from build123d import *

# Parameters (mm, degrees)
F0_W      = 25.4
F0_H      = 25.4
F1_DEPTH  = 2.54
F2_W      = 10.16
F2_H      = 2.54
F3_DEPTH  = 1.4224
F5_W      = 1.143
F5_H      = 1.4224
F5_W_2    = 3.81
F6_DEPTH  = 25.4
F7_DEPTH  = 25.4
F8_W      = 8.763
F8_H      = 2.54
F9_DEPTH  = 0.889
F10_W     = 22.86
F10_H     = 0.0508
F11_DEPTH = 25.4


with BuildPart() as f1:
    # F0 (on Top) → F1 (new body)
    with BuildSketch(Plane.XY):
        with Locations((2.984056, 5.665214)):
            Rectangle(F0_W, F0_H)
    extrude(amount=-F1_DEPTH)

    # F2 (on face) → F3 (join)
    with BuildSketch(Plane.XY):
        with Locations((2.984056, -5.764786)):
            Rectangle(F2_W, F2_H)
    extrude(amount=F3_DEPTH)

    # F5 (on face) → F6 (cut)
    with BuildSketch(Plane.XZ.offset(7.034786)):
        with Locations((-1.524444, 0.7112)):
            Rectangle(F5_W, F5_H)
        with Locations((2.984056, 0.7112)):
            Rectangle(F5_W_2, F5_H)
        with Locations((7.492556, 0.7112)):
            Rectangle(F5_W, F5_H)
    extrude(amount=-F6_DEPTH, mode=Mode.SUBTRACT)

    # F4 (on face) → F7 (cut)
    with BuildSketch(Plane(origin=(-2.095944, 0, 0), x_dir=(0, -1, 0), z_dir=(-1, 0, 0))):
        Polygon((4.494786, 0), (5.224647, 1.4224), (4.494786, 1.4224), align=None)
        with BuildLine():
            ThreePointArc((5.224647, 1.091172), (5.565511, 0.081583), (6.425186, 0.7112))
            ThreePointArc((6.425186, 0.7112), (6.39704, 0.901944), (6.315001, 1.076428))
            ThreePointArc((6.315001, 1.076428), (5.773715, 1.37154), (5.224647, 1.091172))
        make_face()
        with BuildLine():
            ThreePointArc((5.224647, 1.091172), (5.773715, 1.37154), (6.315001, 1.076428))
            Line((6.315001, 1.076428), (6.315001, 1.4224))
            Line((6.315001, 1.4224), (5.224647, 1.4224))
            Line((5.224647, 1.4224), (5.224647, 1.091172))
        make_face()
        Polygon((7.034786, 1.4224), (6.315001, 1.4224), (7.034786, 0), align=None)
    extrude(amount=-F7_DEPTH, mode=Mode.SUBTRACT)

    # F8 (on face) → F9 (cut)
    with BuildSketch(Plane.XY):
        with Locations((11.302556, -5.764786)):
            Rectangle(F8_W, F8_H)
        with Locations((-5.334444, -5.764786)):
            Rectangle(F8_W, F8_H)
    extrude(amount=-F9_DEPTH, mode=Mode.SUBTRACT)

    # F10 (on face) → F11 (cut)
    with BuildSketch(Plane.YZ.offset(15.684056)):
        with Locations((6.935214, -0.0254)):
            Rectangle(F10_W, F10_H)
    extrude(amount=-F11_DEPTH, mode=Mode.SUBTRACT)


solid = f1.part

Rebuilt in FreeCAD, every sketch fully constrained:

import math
import FreeCAD as App
import Part
import Sketcher

V = App.Vector
Q = App.Units.Quantity

doc = App.newDocument("Part")
body = doc.addObject("PartDesign::Body", "Body")

# Sketch on XY plane
sketch1 = body.newObject("Sketcher::SketchObject", "Sketch")
sketch1.AttachmentSupport = (doc.getObject("XY_Plane"), [""])
sketch1.MapMode = "FlatFace"
sketch1.addGeometry([
    Part.LineSegment(V(-10, 18, 0), V(-10, -7, 0)),
    Part.LineSegment(V(-10, -7, 0), V(16, -7, 0)),
    Part.LineSegment(V(16, -7, 0), V(16, 18, 0)),
    Part.LineSegment(V(16, 18, 0), V(-10, 18, 0)),
], False)
sketch1.addConstraint([
    Sketcher.Constraint("Coincident", 0, 2, 1, 1),
    Sketcher.Constraint("Coincident", 1, 2, 2, 1),
    Sketcher.Constraint("Coincident", 2, 2, 3, 1),
    Sketcher.Constraint("Coincident", 3, 2, 0, 1),
    Sketcher.Constraint("Vertical", 0),
    Sketcher.Constraint("Horizontal", 1),
    Sketcher.Constraint("Vertical", 2),
    Sketcher.Constraint("Horizontal", 3),
    Sketcher.Constraint("Equal", 3, 0),
    Sketcher.Constraint("DistanceX", 1, 1, 1, 2, Q("1 in")),
    Sketcher.Constraint("DistanceX", 0, 2, -1, 1, Q("9.715944 mm")),
    Sketcher.Constraint("DistanceY", 0, 2, -1, 1, Q("7.034786 mm")),
])
pad1 = body.newObject("PartDesign::Pad", "Pad")
pad1.Profile = sketch1
pad1.Length = Q("0.1 in")
pad1.Reversed = True

# Sketch on XY plane
sketch2 = body.newObject("Sketcher::SketchObject", "Sketch001")
sketch2.AttachmentSupport = (doc.getObject("XY_Plane"), [""])
sketch2.MapMode = "FlatFace"
sketch2.addGeometry([
    Part.LineSegment(V(-2.1, -4.5, 0), V(-2.1, -7, 0)),
    Part.LineSegment(V(-2.1, -7, 0), V(8.1, -7, 0)),
    Part.LineSegment(V(8.1, -7, 0), V(8.1, -4.5, 0)),
    Part.LineSegment(V(8.1, -4.5, 0), V(-2.1, -4.5, 0)),
], False)
sketch2.addConstraint([
    Sketcher.Constraint("Coincident", 0, 2, 1, 1),
    Sketcher.Constraint("Coincident", 1, 2, 2, 1),
    Sketcher.Constraint("Coincident", 2, 2, 3, 1),
    Sketcher.Constraint("Coincident", 3, 2, 0, 1),
    Sketcher.Constraint("Vertical", 0),
    Sketcher.Constraint("Horizontal", 1),
    Sketcher.Constraint("Vertical", 2),
    Sketcher.Constraint("Horizontal", 3),
    Sketcher.Constraint("DistanceX", 1, 1, 1, 2, Q("0.4 in")),
    Sketcher.Constraint("DistanceY", 0, 2, 0, 1, Q("0.1 in")),
    Sketcher.Constraint("DistanceX", 0, 2, -1, 1, Q("2.095944 mm")),
    Sketcher.Constraint("DistanceY", 0, 2, -1, 1, Q("7.034786 mm")),
])
pad2 = body.newObject("PartDesign::Pad", "Pad001")
pad2.Profile = sketch2
pad2.Length = Q("0.056 in")

# Sketch on XZ plane
sketch3 = body.newObject("Sketcher::SketchObject", "Sketch002")
sketch3.AttachmentSupport = (doc.getObject("XZ_Plane"), [""])
sketch3.MapMode = "FlatFace"
sketch3.AttachmentOffset = App.Placement(V(0, 0, 7.034786), App.Rotation())
sketch3.addGeometry([
    Part.LineSegment(V(-2.1, 1.4, 0), V(-2.1, 0, 0)),  # 0
    Part.LineSegment(V(-2.1, 0, 0), V(-1, 0, 0)),  # 1
    Part.LineSegment(V(-1, 0, 0), V(-1, 1.4, 0)),  # 2
    Part.LineSegment(V(-1, 1.4, 0), V(-2.1, 1.4, 0)),  # 3
    Part.LineSegment(V(1.1, 1.4, 0), V(1.1, 0, 0)),  # 4
    Part.LineSegment(V(1.1, 0, 0), V(4.9, 0, 0)),  # 5
    Part.LineSegment(V(4.9, 0, 0), V(4.9, 1.4, 0)),  # 6
    Part.LineSegment(V(4.9, 1.4, 0), V(1.1, 1.4, 0)),  # 7
    Part.LineSegment(V(6.9, 1.4, 0), V(6.9, 0, 0)),  # 8
    Part.LineSegment(V(6.9, 0, 0), V(8.1, 0, 0)),  # 9
    Part.LineSegment(V(8.1, 0, 0), V(8.1, 1.4, 0)),  # 10
    Part.LineSegment(V(8.1, 1.4, 0), V(6.9, 1.4, 0)),  # 11
], False)
sketch3.addConstraint([
    Sketcher.Constraint("Coincident", 0, 2, 1, 1),
    Sketcher.Constraint("Coincident", 1, 2, 2, 1),
    Sketcher.Constraint("Coincident", 2, 2, 3, 1),
    Sketcher.Constraint("Coincident", 3, 2, 0, 1),
    Sketcher.Constraint("Coincident", 4, 2, 5, 1),
    Sketcher.Constraint("Coincident", 5, 2, 6, 1),
    Sketcher.Constraint("Coincident", 6, 2, 7, 1),
    Sketcher.Constraint("Coincident", 7, 2, 4, 1),
    Sketcher.Constraint("Coincident", 8, 2, 9, 1),
    Sketcher.Constraint("Coincident", 9, 2, 10, 1),
    Sketcher.Constraint("Coincident", 10, 2, 11, 1),
    Sketcher.Constraint("Coincident", 11, 2, 8, 1),
    Sketcher.Constraint("Vertical", 0),
    Sketcher.Constraint("Horizontal", 1),
    Sketcher.Constraint("Vertical", 2),
    Sketcher.Constraint("Horizontal", 3),
    Sketcher.Constraint("Vertical", 4),
    Sketcher.Constraint("Horizontal", 5),
    Sketcher.Constraint("Vertical", 6),
    Sketcher.Constraint("Horizontal", 7),
    Sketcher.Constraint("Vertical", 8),
    Sketcher.Constraint("Horizontal", 9),
    Sketcher.Constraint("Vertical", 10),
    Sketcher.Constraint("Horizontal", 11),
    Sketcher.Constraint("PointOnObject", 0, 2, -1),
    Sketcher.Constraint("PointOnObject", 4, 2, -1),
    Sketcher.Constraint("PointOnObject", 8, 2, -1),
    Sketcher.Constraint("Horizontal", 3, 2, 6, 2),
    Sketcher.Constraint("Horizontal", 7, 2, 10, 2),
    Sketcher.Constraint("Equal", 3, 9),
    Sketcher.Constraint("DistanceX", 5, 1, 5, 2, Q("0.15 in")),
    Sketcher.Constraint("DistanceX", 1, 1, 1, 2, Q("0.045 in")),
    Sketcher.Constraint("DistanceY", 0, 2, 0, 1, Q("0.056 in")),
    Sketcher.Constraint("DistanceX", 1, 2, 4, 2, Q("0.08 in")),
    Sketcher.Constraint("DistanceX", 5, 2, 8, 2, Q("0.08 in")),
    Sketcher.Constraint("DistanceX", 0, 2, -1, 1, Q("2.095944 mm")),
])
pocket1 = body.newObject("PartDesign::Pocket", "Pocket")
pocket1.Profile = sketch3
pocket1.Length = Q("1 in")

# Sketch on YZ plane
sketch4 = body.newObject("Sketcher::SketchObject", "Sketch003")
sketch4.AttachmentSupport = (doc.getObject("YZ_Plane"), [""])
sketch4.MapMode = "FlatFace"
sketch4.AttachmentOffset = App.Placement(V(0, 0, -2.095944), App.Rotation())
sketch4.addGeometry([
    Part.LineSegment(V(-4.49, 0, 0), V(-5.22, 1.42, 0)),  # 0
    Part.LineSegment(V(-5.22, 1.42, 0), V(-4.49, 1.42, 0)),  # 1
    Part.LineSegment(V(-4.49, 1.42, 0), V(-4.49, 0, 0)),  # 2
    Part.ArcOfCircle(Part.Circle(V(-5.76, 0.71, 0), V(0, 0, 1), 0.66), math.radians(-180), math.radians(35)),  # 3
    Part.ArcOfCircle(Part.Circle(V(-5.76, 0.71, 0), V(0, 0, 1), 0.66), math.radians(146), math.radians(180)),  # 4
    Part.LineSegment(V(-6.32, 1.08, 0), V(-6.32, 1.42, 0)),  # 5
    Part.LineSegment(V(-6.32, 1.42, 0), V(-5.22, 1.42, 0)),  # 6
    Part.LineSegment(V(-5.22, 1.42, 0), V(-5.22, 1.09, 0)),  # 7
    Part.LineSegment(V(-7.03, 1.42, 0), V(-6.32, 1.42, 0)),  # 8
    Part.LineSegment(V(-6.32, 1.42, 0), V(-7.03, 0, 0)),  # 9
    Part.LineSegment(V(-7.03, 0, 0), V(-7.03, 1.42, 0)),  # 10
], False)
sketch4.addConstraint([
    Sketcher.Constraint("Coincident", 0, 2, 1, 1),
    Sketcher.Constraint("Coincident", 1, 2, 2, 1),
    Sketcher.Constraint("Coincident", 2, 2, 0, 1),
    Sketcher.Constraint("Tangent", 3, 1, 4, 2),
    Sketcher.Constraint("Coincident", 4, 1, 5, 1),
    Sketcher.Constraint("Coincident", 5, 2, 6, 1),
    Sketcher.Constraint("Coincident", 6, 2, 7, 1),
    Sketcher.Constraint("Coincident", 7, 2, 3, 2),
    Sketcher.Constraint("Coincident", 8, 2, 9, 1),
    Sketcher.Constraint("Coincident", 9, 2, 10, 1),
    Sketcher.Constraint("Coincident", 10, 2, 8, 1),
    Sketcher.Constraint("Horizontal", 1),
    Sketcher.Constraint("Vertical", 2),
    Sketcher.Constraint("Vertical", 5),
    Sketcher.Constraint("Horizontal", 6),
    Sketcher.Constraint("Vertical", 7),
    Sketcher.Constraint("Horizontal", 8),
    Sketcher.Constraint("Vertical", 10),
    Sketcher.Constraint("Coincident", 6, 2, 0, 2),
    Sketcher.Constraint("Coincident", 8, 2, 5, 2),
    Sketcher.Constraint("PointOnObject", 2, 2, -1),
    Sketcher.Constraint("PointOnObject", 9, 2, -1),
    Sketcher.Constraint("Horizontal", 4, 3, 3, 1),
    Sketcher.Constraint("Radius", 3, Q("0.026 in")),
    Sketcher.Constraint("Radius", 4, Q("0.0259998 in")),
    Sketcher.Constraint("DistanceY", 2, 2, 2, 1, Q("0.056 in")),
    Sketcher.Constraint("DistanceX", 3, 3, 1, 2, Q("0.05 in")),
    Sketcher.Constraint("DistanceX", 9, 2, 4, 3, Q("0.0499998 in")),
    Sketcher.Constraint("DistanceY", -1, 1, 3, 3, Q("0.028 in")),
    Sketcher.Constraint("DistanceX", 1, 1, 1, 2, Q("0.729861 mm")),
    Sketcher.Constraint("DistanceX", 4, 1, -1, 1, Q("6.315001 mm")),
    Sketcher.Constraint("Distance", 9, Q("1.594149 mm")),
])
pocket2 = body.newObject("PartDesign::Pocket", "Pocket001")
pocket2.Profile = sketch4
pocket2.Length = Q("1 in")
pocket2.Reversed = True

# Sketch on XY plane
sketch5 = body.newObject("Sketcher::SketchObject", "Sketch004")
sketch5.AttachmentSupport = (doc.getObject("XY_Plane"), [""])
sketch5.MapMode = "FlatFace"
sketch5.addGeometry([
    Part.LineSegment(V(6.9, -4.5, 0), V(6.9, -7, 0)),  # 0
    Part.LineSegment(V(6.9, -7, 0), V(15.7, -7, 0)),  # 1
    Part.LineSegment(V(15.7, -7, 0), V(15.7, -4.5, 0)),  # 2
    Part.LineSegment(V(15.7, -4.5, 0), V(6.9, -4.5, 0)),  # 3
    Part.LineSegment(V(-9.7, -4.5, 0), V(-9.7, -7, 0)),  # 4
    Part.LineSegment(V(-9.7, -7, 0), V(-1, -7, 0)),  # 5
    Part.LineSegment(V(-1, -7, 0), V(-1, -4.5, 0)),  # 6
    Part.LineSegment(V(-1, -4.5, 0), V(-9.7, -4.5, 0)),  # 7
], False)
sketch5.addConstraint([
    Sketcher.Constraint("Coincident", 0, 2, 1, 1),
    Sketcher.Constraint("Coincident", 1, 2, 2, 1),
    Sketcher.Constraint("Coincident", 2, 2, 3, 1),
    Sketcher.Constraint("Coincident", 3, 2, 0, 1),
    Sketcher.Constraint("Coincident", 4, 2, 5, 1),
    Sketcher.Constraint("Coincident", 5, 2, 6, 1),
    Sketcher.Constraint("Coincident", 6, 2, 7, 1),
    Sketcher.Constraint("Coincident", 7, 2, 4, 1),
    Sketcher.Constraint("Vertical", 0),
    Sketcher.Constraint("Horizontal", 1),
    Sketcher.Constraint("Vertical", 2),
    Sketcher.Constraint("Horizontal", 3),
    Sketcher.Constraint("Vertical", 4),
    Sketcher.Constraint("Horizontal", 5),
    Sketcher.Constraint("Vertical", 6),
    Sketcher.Constraint("Horizontal", 7),
    Sketcher.Constraint("Horizontal", 1, 2, 4, 2),
    Sketcher.Constraint("Horizontal", 3, 2, 6, 2),
    Sketcher.Constraint("Equal", 3, 5),
    Sketcher.Constraint("DistanceY", 0, 2, 0, 1, Q("0.1 in")),
    Sketcher.Constraint("DistanceX", 4, 2, 1, 2, Q("1 in")),
    Sketcher.Constraint("DistanceX", 1, 1, 1, 2, Q("0.345 in")),
    Sketcher.Constraint("DistanceX", -1, 1, 0, 2, Q("6.921056 mm")),
    Sketcher.Constraint("DistanceY", 0, 2, -1, 1, Q("7.034786 mm")),
])
pocket3 = body.newObject("PartDesign::Pocket", "Pocket002")
pocket3.Profile = sketch5
pocket3.Length = Q("0.035 in")

# Sketch on YZ plane
sketch6 = body.newObject("Sketcher::SketchObject", "Sketch005")
sketch6.AttachmentSupport = (doc.getObject("YZ_Plane"), [""])
sketch6.MapMode = "FlatFace"
sketch6.AttachmentOffset = App.Placement(V(0, 0, 15.684056), App.Rotation())
sketch6.addGeometry([
    Part.LineSegment(V(-4.49, 0, 0), V(-4.49, -0.05, 0)),
    Part.LineSegment(V(-4.49, -0.05, 0), V(18.37, -0.05, 0)),
    Part.LineSegment(V(18.37, -0.05, 0), V(18.37, 0, 0)),
    Part.LineSegment(V(18.37, 0, 0), V(-4.49, 0, 0)),
], False)
sketch6.addConstraint([
    Sketcher.Constraint("Coincident", 0, 2, 1, 1),
    Sketcher.Constraint("Coincident", 1, 2, 2, 1),
    Sketcher.Constraint("Coincident", 2, 2, 3, 1),
    Sketcher.Constraint("Coincident", 3, 2, 0, 1),
    Sketcher.Constraint("Vertical", 0),
    Sketcher.Constraint("Horizontal", 1),
    Sketcher.Constraint("Vertical", 2),
    Sketcher.Constraint("Horizontal", 3),
    Sketcher.Constraint("PointOnObject", 2, 2, -1),
    Sketcher.Constraint("DistanceX", 1, 1, 1, 2, Q("0.9 in")),
    Sketcher.Constraint("DistanceY", 0, 2, 0, 1, Q("0.002 in")),
    Sketcher.Constraint("DistanceX", 0, 2, -1, 1, Q("4.494786 mm")),
])
pocket4 = body.newObject("PartDesign::Pocket", "Pocket003")
pocket4.Profile = sketch6
pocket4.Length = Q("1 in")

doc.recompute()
